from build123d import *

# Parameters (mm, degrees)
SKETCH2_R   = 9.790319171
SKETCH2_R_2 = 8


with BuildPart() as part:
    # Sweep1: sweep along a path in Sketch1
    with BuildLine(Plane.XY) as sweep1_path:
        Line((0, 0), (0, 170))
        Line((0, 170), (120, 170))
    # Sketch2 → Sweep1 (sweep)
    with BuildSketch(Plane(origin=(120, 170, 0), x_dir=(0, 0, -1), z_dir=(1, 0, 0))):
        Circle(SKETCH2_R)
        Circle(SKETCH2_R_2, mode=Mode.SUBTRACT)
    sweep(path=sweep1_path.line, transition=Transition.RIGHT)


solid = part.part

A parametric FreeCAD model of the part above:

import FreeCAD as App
import Part
import Sketcher
from FreeCAD import Vector
Q = App.Units.Quantity

doc = App.newDocument("Part")
body = doc.addObject("PartDesign::Body", "Body")

# Sketch on YZ plane
sketch1 = doc.addObject("Sketcher::SketchObject", "Sketch")
body.addObject(sketch1)
sketch1.AttachmentSupport = (doc.YZ_Plane, [""])
sketch1.MapMode = "FlatFace"
sketch1.AttachmentOffset = App.Placement(Vector(0, 0, 120), App.Rotation())
sketch1.addGeometry([
    Part.Circle(Vector(170, 0, 0), Vector(0, 0, 1), 9.790319),
    Part.Circle(Vector(170, 0, 0), Vector(0, 0, 1), 8),
], False)
sketch1.addConstraint([
    Sketcher.Constraint("Coincident", 1, 3, 0, 3),
    Sketcher.Constraint("PointOnObject", 0, 3, -1),
    Sketcher.Constraint("Diameter", 1, Q("16 mm")),
    Sketcher.Constraint("DistanceX", -1, 1, 0, 3, Q("170 mm")),
    Sketcher.Constraint("Diameter", 0, Q("19.580638 mm")),
])

# Sketch on XY plane
sketch2 = doc.addObject("Sketcher::SketchObject", "Sketch001")
body.addObject(sketch2)
sketch2.AttachmentSupport = (doc.XY_Plane, [""])
sketch2.MapMode = "FlatFace"
sketch2.addGeometry([
    Part.LineSegment(Vector(0, 0, 0), Vector(0, 170, 0)),
    Part.LineSegment(Vector(0, 170, 0), Vector(120, 170, 0)),
], False)
sketch2.addConstraint([
    Sketcher.Constraint("Coincident", 0, 2, 1, 1),
    Sketcher.Constraint("Vertical", 0),
    Sketcher.Constraint("Horizontal", 1),
    Sketcher.Constraint("Coincident", 0, 1, -1, 1),
    Sketcher.Constraint("DistanceX", 1, 1, 1, 2, Q("120 mm")),
    Sketcher.Constraint("DistanceY", 0, 1, 0, 2, Q("170 mm")),
])
doc.recompute()

additivepipe = doc.addObject("PartDesign::AdditivePipe", "AdditivePipe")
body.addObject(additivepipe)
additivepipe.Profile = sketch1
additivepipe.Spine = (sketch2, ["Edge1", "Edge2"])
additivepipe.Transition = "Right corner"

doc.recompute()
